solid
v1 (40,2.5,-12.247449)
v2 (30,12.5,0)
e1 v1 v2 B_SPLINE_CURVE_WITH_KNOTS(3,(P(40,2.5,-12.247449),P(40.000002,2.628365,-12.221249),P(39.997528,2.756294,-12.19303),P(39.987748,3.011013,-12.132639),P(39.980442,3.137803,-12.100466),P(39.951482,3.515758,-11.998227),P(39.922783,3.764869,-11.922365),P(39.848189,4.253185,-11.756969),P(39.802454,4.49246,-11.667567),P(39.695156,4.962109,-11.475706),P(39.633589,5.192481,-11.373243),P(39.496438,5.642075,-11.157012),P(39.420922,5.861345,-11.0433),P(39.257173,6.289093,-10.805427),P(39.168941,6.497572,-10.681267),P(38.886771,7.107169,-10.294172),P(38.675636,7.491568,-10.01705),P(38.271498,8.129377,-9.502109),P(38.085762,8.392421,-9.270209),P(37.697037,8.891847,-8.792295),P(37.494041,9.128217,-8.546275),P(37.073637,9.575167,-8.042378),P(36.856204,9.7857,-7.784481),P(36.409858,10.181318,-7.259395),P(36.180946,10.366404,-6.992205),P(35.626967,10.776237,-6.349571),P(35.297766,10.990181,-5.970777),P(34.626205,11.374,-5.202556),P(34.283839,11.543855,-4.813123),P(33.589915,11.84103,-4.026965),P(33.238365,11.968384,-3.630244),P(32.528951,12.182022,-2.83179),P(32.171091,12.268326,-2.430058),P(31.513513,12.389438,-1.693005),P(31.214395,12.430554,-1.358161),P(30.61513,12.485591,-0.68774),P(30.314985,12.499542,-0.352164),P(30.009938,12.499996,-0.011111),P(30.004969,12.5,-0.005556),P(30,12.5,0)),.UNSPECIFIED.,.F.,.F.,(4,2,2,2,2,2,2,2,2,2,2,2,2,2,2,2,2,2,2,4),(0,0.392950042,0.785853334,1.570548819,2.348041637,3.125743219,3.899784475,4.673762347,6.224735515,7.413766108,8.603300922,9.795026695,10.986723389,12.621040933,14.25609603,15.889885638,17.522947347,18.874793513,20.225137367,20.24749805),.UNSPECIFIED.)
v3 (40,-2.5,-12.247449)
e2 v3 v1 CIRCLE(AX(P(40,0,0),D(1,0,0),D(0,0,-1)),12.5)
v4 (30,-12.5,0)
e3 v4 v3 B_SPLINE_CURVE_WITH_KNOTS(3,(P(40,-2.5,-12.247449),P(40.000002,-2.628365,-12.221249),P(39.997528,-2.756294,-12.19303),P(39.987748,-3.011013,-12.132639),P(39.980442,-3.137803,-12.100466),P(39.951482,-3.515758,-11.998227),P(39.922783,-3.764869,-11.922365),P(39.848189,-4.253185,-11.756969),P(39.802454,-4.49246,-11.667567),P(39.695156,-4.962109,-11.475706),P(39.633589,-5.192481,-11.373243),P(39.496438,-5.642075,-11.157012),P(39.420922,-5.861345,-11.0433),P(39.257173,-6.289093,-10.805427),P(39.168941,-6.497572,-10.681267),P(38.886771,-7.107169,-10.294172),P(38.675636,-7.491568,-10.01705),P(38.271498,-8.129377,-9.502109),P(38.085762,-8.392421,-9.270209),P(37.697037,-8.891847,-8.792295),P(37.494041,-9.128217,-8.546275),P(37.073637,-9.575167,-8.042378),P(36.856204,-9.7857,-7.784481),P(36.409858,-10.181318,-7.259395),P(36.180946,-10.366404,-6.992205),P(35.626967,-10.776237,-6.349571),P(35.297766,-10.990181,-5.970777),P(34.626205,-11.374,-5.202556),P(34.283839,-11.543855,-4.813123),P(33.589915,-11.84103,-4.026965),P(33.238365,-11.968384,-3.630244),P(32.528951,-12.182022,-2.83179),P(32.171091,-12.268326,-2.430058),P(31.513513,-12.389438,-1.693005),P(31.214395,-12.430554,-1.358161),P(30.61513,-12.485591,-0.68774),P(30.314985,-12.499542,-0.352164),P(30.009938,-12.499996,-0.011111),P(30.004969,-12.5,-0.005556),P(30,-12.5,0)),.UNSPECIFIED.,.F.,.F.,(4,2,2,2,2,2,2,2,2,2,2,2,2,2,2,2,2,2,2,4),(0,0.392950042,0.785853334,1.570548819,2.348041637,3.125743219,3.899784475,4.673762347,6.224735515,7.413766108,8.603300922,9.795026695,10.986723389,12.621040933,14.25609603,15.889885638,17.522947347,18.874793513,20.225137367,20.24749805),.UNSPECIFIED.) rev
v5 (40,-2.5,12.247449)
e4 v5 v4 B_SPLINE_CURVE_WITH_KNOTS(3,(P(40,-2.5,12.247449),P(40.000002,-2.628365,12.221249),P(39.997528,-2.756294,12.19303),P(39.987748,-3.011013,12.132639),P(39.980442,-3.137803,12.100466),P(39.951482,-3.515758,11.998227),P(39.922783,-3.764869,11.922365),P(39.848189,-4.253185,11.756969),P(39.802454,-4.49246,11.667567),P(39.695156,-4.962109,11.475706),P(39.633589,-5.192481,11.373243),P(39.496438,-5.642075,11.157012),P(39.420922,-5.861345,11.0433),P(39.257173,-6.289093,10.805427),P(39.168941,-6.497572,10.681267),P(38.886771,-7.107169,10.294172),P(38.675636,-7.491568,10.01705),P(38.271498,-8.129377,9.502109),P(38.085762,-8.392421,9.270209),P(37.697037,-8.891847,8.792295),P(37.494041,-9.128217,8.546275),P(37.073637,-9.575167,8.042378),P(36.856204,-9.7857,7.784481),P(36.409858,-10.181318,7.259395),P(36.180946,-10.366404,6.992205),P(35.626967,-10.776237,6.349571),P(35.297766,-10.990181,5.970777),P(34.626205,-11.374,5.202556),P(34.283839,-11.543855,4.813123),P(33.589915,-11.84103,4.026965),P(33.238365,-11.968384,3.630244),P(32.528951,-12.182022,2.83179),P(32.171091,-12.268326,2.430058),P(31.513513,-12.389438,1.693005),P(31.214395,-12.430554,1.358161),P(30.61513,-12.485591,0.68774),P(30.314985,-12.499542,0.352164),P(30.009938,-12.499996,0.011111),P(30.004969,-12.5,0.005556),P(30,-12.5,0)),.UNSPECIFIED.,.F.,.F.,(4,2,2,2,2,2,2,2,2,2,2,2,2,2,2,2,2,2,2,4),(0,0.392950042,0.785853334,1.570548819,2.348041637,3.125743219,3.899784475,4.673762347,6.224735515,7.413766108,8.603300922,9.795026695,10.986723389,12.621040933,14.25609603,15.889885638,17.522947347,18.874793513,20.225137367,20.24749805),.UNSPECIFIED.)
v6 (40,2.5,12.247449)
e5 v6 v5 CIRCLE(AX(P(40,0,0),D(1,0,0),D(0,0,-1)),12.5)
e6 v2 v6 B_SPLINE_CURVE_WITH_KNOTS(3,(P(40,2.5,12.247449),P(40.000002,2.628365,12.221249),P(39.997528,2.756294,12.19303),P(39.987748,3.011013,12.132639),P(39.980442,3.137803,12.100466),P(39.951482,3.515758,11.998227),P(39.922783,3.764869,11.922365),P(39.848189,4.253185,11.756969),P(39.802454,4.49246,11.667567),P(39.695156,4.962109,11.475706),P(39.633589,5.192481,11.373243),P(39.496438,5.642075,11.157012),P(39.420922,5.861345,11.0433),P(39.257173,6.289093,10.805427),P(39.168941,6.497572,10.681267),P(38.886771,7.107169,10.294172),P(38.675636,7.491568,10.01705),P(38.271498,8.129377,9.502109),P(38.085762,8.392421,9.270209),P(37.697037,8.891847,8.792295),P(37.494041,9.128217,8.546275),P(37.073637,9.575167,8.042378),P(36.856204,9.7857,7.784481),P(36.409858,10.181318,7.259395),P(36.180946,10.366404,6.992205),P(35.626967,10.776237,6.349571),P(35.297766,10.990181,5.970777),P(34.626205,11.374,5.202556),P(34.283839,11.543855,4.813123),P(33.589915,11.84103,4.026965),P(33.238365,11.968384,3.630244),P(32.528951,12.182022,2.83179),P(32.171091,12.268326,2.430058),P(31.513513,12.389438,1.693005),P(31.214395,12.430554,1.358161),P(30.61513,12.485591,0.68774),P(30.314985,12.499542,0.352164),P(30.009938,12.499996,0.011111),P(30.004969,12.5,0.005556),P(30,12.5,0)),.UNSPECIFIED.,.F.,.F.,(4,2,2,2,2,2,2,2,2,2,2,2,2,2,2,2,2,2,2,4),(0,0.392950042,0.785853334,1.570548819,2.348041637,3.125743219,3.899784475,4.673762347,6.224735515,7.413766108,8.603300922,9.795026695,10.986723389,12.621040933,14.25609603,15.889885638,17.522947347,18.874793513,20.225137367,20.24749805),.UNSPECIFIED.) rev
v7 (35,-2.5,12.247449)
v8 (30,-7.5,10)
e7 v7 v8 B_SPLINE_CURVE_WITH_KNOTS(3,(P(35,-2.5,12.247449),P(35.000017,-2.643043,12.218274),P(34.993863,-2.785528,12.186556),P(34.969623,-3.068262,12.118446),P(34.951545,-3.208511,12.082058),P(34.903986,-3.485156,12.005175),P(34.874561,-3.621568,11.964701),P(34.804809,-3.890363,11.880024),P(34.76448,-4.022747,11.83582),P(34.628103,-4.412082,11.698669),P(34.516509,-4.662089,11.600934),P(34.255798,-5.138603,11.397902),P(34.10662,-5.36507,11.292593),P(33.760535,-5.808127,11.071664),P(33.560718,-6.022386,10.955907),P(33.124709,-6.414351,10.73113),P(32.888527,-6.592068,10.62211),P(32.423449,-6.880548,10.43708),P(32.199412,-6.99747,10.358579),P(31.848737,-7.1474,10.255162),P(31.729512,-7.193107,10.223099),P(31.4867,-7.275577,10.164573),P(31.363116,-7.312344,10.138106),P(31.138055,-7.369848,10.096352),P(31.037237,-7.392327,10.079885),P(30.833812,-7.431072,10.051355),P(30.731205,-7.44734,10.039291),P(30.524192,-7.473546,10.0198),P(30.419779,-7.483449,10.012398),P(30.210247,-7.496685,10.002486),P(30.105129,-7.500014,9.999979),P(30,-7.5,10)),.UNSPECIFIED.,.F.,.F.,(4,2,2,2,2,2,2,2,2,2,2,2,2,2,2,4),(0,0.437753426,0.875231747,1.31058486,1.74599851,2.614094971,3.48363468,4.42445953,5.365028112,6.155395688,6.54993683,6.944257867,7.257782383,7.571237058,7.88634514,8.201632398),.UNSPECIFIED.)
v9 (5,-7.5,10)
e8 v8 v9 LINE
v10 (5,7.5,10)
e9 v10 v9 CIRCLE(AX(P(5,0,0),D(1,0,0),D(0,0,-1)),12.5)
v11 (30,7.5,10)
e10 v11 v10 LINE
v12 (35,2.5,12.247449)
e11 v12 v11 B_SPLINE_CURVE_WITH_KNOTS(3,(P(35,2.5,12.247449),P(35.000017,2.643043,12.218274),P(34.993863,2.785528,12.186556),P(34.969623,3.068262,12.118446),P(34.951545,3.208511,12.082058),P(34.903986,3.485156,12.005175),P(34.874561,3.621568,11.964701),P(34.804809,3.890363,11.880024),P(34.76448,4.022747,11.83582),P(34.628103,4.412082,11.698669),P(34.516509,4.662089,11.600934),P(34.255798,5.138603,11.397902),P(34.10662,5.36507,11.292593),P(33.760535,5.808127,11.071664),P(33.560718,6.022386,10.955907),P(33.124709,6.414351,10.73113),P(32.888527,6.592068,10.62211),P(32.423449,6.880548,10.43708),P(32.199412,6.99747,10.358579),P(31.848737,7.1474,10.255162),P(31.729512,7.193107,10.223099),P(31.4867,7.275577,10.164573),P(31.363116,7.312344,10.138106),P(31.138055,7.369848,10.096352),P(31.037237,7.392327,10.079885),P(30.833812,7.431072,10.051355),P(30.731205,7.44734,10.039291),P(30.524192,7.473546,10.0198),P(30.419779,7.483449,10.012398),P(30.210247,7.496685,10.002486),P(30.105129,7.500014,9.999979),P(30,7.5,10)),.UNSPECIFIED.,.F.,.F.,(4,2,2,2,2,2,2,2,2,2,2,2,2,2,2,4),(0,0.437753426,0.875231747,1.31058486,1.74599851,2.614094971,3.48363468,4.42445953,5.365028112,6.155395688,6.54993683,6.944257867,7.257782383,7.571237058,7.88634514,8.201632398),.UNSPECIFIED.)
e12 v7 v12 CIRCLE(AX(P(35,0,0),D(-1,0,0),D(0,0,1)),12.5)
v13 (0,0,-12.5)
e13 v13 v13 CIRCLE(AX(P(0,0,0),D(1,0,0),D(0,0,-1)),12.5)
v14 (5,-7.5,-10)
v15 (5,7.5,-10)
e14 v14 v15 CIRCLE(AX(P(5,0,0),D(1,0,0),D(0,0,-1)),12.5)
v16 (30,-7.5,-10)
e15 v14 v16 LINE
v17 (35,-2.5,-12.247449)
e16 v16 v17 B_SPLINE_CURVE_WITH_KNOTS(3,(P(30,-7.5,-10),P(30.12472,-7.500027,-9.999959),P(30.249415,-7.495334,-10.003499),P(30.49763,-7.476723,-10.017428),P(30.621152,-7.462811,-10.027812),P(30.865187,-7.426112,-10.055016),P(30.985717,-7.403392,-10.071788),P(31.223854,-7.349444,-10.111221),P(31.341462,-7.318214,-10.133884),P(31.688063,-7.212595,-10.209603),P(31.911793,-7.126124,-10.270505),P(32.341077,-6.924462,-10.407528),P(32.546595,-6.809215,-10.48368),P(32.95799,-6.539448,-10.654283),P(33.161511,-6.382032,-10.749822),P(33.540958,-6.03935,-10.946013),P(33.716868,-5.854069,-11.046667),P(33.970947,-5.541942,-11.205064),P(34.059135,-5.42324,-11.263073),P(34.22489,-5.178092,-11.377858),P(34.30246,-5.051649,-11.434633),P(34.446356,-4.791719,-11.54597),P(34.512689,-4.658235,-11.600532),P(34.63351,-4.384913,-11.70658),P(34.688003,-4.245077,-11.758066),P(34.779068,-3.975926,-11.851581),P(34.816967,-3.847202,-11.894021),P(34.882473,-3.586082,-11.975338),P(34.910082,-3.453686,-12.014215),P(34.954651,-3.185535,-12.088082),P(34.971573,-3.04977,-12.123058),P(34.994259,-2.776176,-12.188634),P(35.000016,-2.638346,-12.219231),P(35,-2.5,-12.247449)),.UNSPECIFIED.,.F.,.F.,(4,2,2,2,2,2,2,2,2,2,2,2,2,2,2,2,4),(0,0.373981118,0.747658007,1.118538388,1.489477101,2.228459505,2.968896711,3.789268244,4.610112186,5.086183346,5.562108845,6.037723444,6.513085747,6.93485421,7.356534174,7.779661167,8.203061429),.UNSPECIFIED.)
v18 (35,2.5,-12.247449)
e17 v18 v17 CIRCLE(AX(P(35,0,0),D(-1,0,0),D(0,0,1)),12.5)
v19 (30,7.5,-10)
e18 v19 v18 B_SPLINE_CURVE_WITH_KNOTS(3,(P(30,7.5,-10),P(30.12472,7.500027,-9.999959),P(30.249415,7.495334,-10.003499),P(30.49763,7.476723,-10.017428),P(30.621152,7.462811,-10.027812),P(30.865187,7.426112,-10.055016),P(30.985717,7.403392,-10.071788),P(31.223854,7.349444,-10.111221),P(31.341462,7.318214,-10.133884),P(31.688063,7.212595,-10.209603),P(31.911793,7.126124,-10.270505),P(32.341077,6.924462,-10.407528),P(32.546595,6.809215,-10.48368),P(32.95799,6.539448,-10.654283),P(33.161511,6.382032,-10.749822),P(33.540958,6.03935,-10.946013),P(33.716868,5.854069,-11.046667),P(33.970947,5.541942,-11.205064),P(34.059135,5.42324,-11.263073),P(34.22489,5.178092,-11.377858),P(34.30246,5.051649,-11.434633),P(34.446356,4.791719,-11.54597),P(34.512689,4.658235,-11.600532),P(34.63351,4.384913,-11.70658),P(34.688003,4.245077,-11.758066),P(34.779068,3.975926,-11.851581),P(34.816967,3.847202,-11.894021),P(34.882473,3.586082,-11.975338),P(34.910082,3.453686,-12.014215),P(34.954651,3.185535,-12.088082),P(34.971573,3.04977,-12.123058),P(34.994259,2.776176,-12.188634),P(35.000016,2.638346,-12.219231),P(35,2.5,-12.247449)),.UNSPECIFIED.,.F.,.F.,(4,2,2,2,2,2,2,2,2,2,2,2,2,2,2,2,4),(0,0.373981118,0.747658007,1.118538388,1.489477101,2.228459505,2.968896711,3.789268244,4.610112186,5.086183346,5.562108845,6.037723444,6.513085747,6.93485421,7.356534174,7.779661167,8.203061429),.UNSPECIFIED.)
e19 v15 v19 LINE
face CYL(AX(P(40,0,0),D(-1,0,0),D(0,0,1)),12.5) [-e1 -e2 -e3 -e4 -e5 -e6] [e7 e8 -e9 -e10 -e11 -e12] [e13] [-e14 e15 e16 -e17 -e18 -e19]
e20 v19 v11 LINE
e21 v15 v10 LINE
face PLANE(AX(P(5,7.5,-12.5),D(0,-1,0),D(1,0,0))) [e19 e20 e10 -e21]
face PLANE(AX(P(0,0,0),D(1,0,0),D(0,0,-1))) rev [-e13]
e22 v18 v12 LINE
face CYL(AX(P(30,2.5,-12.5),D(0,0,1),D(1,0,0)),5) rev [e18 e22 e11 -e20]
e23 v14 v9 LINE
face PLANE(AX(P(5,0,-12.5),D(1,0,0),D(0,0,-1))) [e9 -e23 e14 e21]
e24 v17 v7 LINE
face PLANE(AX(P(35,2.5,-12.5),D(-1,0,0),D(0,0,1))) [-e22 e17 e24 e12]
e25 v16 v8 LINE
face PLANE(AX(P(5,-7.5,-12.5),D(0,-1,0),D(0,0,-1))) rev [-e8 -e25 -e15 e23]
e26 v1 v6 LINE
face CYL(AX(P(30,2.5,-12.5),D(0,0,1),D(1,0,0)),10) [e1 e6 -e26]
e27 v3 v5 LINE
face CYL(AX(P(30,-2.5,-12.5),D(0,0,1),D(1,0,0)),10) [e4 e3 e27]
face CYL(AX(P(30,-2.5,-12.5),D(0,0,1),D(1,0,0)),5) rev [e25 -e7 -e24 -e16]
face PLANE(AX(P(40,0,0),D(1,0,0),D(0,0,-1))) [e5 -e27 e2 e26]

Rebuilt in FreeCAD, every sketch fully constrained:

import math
import FreeCAD as App
import Part
import Sketcher
from FreeCAD import Vector
Q = App.Units.Quantity

doc = App.newDocument("Part")
body = doc.addObject("PartDesign::Body", "Body")

# Sketch on YZ plane
sketch1 = body.newObject("Sketcher::SketchObject", "Sketch")
sketch1.AttachmentSupport = (doc.getObject("YZ_Plane"), [""])
sketch1.MapMode = "FlatFace"
sketch1.addGeometry(Part.Circle(Vector(0, 0, 0), Vector(0, 0, 1), 12.5), False)
sketch1.addConstraint([
    Sketcher.Constraint("Coincident", 0, 3, -1, 1),
    Sketcher.Constraint("Diameter", 0, Q("25 mm")),
])
pad1 = body.newObject("PartDesign::Pad", "Pad")
pad1.Profile = sketch1
pad1.Length = 40

# Sketch on XY plane
sketch2 = body.newObject("Sketcher::SketchObject", "Sketch001")
sketch2.AttachmentSupport = (doc.getObject("XY_Plane"), [""])
sketch2.MapMode = "FlatFace"
sketch2.addGeometry([
    Part.LineSegment(Vector(30, 7.5, 0), Vector(5, 7.5, 0)),  # 0
    Part.LineSegment(Vector(5, 7.5, 0), Vector(5, -7.5, 0)),  # 1
    Part.LineSegment(Vector(5, -7.5, 0), Vector(30, -7.5, 0)),  # 2
    Part.ArcOfCircle(Part.Circle(Vector(30, -2.5, 0), Vector(0, 0, 1), 5), math.radians(-90), math.radians(0)),  # 3
    Part.LineSegment(Vector(35, -2.5, 0), Vector(35, 2.5, 0)),  # 4
    Part.ArcOfCircle(Part.Circle(Vector(30, 2.5, 0), Vector(0, 0, 1), 5), math.radians(0), math.radians(90)),  # 5
], False)
sketch2.addConstraint([
    Sketcher.Constraint("Coincident", 0, 2, 1, 1),
    Sketcher.Constraint("Coincident", 1, 2, 2, 1),
    Sketcher.Constraint("Tangent", 2, 2, 3, 1),
    Sketcher.Constraint("Tangent", 3, 2, 4, 1),
    Sketcher.Constraint("Tangent", 4, 2, 5, 1),
    Sketcher.Constraint("Tangent", 5, 2, 0, 1),
    Sketcher.Constraint("Horizontal", 0),
    Sketcher.Constraint("Vertical", 1),
    Sketcher.Constraint("Horizontal", 2),
    Sketcher.Constraint("Vertical", 4),
    Sketcher.Constraint("Equal", 3, 5),
    Sketcher.Constraint("Radius", 3, Q("5 mm")),
    Sketcher.Constraint("DistanceX", 0, 2, 0, 1, Q("25 mm")),
    Sketcher.Constraint("DistanceY", 1, 2, 1, 1, Q("15 mm")),
    Sketcher.Constraint("DistanceX", -1, 1, 3, 3, Q("30 mm")),
    Sketcher.Constraint("DistanceY", 3, 3, -1, 1, Q("2.5 mm")),
])
pocket1 = body.newObject("PartDesign::Pocket", "Pocket")
pocket1.Profile = sketch2
pocket1.Type = "ThroughAll"
pocket1.Midplane = True

# Sketch on XY plane
sketch3 = body.newObject("Sketcher::SketchObject", "Sketch002")
sketch3.AttachmentSupport = (doc.getObject("XY_Plane"), [""])
sketch3.MapMode = "FlatFace"
sketch3.addGeometry([
    Part.LineSegment(Vector(40, 12.5, 0), Vector(30, 12.5, 0)),
    Part.ArcOfCircle(Part.Circle(Vector(30, 2.5, 0), Vector(0, 0, 1), 10), math.radians(0), math.radians(90)),
    Part.LineSegment(Vector(40, 2.5, 0), Vector(40, 12.5, 0)),
], False)
sketch3.addConstraint([
    Sketcher.Constraint("Tangent", 0, 2, 1, 2),
    Sketcher.Constraint("Tangent", 1, 1, 2, 1),
    Sketcher.Constraint("Coincident", 2, 2, 0, 1),
    Sketcher.Constraint("Horizontal", 0),
    Sketcher.Constraint("Vertical", 2),
    Sketcher.Constraint("Radius", 1, Q("10 mm")),
    Sketcher.Constraint("DistanceX", -1, 1, 1, 3, Q("30 mm")),
    Sketcher.Constraint("DistanceY", -1, 1, 1, 3, Q("2.5 mm")),
])
pocket2 = body.newObject("PartDesign::Pocket", "Pocket001")
pocket2.Profile = sketch3
pocket2.Type = "ThroughAll"
pocket2.Midplane = True

# Sketch on XY plane
sketch4 = body.newObject("Sketcher::SketchObject", "Sketch003")
sketch4.AttachmentSupport = (doc.getObject("XY_Plane"), [""])
sketch4.MapMode = "FlatFace"
sketch4.addGeometry([
    Part.LineSegment(Vector(30, -12.5, 0), Vector(40, -12.5, 0)),
    Part.LineSegment(Vector(40, -12.5, 0), Vector(40, -2.5, 0)),
    Part.ArcOfCircle(Part.Circle(Vector(30, -2.5, 0), Vector(0, 0, 1), 10), math.radians(-90), math.radians(0)),
], False)
sketch4.addConstraint([
    Sketcher.Constraint("Coincident", 0, 2, 1, 1),
    Sketcher.Constraint("Tangent", 1, 2, 2, 2),
    Sketcher.Constraint("Tangent", 2, 1, 0, 1),
    Sketcher.Constraint("Horizontal", 0),
    Sketcher.Constraint("Vertical", 1),
    Sketcher.Constraint("Radius", 2, Q("10 mm")),
    Sketcher.Constraint("DistanceX", -1, 1, 2, 3, Q("30 mm")),
    Sketcher.Constraint("DistanceY", 2, 3, -1, 1, Q("2.5 mm")),
])
pocket3 = body.newObject("PartDesign::Pocket", "Pocket002")
pocket3.Profile = sketch4
pocket3.Type = "ThroughAll"
pocket3.Midplane = True

doc.recompute()
